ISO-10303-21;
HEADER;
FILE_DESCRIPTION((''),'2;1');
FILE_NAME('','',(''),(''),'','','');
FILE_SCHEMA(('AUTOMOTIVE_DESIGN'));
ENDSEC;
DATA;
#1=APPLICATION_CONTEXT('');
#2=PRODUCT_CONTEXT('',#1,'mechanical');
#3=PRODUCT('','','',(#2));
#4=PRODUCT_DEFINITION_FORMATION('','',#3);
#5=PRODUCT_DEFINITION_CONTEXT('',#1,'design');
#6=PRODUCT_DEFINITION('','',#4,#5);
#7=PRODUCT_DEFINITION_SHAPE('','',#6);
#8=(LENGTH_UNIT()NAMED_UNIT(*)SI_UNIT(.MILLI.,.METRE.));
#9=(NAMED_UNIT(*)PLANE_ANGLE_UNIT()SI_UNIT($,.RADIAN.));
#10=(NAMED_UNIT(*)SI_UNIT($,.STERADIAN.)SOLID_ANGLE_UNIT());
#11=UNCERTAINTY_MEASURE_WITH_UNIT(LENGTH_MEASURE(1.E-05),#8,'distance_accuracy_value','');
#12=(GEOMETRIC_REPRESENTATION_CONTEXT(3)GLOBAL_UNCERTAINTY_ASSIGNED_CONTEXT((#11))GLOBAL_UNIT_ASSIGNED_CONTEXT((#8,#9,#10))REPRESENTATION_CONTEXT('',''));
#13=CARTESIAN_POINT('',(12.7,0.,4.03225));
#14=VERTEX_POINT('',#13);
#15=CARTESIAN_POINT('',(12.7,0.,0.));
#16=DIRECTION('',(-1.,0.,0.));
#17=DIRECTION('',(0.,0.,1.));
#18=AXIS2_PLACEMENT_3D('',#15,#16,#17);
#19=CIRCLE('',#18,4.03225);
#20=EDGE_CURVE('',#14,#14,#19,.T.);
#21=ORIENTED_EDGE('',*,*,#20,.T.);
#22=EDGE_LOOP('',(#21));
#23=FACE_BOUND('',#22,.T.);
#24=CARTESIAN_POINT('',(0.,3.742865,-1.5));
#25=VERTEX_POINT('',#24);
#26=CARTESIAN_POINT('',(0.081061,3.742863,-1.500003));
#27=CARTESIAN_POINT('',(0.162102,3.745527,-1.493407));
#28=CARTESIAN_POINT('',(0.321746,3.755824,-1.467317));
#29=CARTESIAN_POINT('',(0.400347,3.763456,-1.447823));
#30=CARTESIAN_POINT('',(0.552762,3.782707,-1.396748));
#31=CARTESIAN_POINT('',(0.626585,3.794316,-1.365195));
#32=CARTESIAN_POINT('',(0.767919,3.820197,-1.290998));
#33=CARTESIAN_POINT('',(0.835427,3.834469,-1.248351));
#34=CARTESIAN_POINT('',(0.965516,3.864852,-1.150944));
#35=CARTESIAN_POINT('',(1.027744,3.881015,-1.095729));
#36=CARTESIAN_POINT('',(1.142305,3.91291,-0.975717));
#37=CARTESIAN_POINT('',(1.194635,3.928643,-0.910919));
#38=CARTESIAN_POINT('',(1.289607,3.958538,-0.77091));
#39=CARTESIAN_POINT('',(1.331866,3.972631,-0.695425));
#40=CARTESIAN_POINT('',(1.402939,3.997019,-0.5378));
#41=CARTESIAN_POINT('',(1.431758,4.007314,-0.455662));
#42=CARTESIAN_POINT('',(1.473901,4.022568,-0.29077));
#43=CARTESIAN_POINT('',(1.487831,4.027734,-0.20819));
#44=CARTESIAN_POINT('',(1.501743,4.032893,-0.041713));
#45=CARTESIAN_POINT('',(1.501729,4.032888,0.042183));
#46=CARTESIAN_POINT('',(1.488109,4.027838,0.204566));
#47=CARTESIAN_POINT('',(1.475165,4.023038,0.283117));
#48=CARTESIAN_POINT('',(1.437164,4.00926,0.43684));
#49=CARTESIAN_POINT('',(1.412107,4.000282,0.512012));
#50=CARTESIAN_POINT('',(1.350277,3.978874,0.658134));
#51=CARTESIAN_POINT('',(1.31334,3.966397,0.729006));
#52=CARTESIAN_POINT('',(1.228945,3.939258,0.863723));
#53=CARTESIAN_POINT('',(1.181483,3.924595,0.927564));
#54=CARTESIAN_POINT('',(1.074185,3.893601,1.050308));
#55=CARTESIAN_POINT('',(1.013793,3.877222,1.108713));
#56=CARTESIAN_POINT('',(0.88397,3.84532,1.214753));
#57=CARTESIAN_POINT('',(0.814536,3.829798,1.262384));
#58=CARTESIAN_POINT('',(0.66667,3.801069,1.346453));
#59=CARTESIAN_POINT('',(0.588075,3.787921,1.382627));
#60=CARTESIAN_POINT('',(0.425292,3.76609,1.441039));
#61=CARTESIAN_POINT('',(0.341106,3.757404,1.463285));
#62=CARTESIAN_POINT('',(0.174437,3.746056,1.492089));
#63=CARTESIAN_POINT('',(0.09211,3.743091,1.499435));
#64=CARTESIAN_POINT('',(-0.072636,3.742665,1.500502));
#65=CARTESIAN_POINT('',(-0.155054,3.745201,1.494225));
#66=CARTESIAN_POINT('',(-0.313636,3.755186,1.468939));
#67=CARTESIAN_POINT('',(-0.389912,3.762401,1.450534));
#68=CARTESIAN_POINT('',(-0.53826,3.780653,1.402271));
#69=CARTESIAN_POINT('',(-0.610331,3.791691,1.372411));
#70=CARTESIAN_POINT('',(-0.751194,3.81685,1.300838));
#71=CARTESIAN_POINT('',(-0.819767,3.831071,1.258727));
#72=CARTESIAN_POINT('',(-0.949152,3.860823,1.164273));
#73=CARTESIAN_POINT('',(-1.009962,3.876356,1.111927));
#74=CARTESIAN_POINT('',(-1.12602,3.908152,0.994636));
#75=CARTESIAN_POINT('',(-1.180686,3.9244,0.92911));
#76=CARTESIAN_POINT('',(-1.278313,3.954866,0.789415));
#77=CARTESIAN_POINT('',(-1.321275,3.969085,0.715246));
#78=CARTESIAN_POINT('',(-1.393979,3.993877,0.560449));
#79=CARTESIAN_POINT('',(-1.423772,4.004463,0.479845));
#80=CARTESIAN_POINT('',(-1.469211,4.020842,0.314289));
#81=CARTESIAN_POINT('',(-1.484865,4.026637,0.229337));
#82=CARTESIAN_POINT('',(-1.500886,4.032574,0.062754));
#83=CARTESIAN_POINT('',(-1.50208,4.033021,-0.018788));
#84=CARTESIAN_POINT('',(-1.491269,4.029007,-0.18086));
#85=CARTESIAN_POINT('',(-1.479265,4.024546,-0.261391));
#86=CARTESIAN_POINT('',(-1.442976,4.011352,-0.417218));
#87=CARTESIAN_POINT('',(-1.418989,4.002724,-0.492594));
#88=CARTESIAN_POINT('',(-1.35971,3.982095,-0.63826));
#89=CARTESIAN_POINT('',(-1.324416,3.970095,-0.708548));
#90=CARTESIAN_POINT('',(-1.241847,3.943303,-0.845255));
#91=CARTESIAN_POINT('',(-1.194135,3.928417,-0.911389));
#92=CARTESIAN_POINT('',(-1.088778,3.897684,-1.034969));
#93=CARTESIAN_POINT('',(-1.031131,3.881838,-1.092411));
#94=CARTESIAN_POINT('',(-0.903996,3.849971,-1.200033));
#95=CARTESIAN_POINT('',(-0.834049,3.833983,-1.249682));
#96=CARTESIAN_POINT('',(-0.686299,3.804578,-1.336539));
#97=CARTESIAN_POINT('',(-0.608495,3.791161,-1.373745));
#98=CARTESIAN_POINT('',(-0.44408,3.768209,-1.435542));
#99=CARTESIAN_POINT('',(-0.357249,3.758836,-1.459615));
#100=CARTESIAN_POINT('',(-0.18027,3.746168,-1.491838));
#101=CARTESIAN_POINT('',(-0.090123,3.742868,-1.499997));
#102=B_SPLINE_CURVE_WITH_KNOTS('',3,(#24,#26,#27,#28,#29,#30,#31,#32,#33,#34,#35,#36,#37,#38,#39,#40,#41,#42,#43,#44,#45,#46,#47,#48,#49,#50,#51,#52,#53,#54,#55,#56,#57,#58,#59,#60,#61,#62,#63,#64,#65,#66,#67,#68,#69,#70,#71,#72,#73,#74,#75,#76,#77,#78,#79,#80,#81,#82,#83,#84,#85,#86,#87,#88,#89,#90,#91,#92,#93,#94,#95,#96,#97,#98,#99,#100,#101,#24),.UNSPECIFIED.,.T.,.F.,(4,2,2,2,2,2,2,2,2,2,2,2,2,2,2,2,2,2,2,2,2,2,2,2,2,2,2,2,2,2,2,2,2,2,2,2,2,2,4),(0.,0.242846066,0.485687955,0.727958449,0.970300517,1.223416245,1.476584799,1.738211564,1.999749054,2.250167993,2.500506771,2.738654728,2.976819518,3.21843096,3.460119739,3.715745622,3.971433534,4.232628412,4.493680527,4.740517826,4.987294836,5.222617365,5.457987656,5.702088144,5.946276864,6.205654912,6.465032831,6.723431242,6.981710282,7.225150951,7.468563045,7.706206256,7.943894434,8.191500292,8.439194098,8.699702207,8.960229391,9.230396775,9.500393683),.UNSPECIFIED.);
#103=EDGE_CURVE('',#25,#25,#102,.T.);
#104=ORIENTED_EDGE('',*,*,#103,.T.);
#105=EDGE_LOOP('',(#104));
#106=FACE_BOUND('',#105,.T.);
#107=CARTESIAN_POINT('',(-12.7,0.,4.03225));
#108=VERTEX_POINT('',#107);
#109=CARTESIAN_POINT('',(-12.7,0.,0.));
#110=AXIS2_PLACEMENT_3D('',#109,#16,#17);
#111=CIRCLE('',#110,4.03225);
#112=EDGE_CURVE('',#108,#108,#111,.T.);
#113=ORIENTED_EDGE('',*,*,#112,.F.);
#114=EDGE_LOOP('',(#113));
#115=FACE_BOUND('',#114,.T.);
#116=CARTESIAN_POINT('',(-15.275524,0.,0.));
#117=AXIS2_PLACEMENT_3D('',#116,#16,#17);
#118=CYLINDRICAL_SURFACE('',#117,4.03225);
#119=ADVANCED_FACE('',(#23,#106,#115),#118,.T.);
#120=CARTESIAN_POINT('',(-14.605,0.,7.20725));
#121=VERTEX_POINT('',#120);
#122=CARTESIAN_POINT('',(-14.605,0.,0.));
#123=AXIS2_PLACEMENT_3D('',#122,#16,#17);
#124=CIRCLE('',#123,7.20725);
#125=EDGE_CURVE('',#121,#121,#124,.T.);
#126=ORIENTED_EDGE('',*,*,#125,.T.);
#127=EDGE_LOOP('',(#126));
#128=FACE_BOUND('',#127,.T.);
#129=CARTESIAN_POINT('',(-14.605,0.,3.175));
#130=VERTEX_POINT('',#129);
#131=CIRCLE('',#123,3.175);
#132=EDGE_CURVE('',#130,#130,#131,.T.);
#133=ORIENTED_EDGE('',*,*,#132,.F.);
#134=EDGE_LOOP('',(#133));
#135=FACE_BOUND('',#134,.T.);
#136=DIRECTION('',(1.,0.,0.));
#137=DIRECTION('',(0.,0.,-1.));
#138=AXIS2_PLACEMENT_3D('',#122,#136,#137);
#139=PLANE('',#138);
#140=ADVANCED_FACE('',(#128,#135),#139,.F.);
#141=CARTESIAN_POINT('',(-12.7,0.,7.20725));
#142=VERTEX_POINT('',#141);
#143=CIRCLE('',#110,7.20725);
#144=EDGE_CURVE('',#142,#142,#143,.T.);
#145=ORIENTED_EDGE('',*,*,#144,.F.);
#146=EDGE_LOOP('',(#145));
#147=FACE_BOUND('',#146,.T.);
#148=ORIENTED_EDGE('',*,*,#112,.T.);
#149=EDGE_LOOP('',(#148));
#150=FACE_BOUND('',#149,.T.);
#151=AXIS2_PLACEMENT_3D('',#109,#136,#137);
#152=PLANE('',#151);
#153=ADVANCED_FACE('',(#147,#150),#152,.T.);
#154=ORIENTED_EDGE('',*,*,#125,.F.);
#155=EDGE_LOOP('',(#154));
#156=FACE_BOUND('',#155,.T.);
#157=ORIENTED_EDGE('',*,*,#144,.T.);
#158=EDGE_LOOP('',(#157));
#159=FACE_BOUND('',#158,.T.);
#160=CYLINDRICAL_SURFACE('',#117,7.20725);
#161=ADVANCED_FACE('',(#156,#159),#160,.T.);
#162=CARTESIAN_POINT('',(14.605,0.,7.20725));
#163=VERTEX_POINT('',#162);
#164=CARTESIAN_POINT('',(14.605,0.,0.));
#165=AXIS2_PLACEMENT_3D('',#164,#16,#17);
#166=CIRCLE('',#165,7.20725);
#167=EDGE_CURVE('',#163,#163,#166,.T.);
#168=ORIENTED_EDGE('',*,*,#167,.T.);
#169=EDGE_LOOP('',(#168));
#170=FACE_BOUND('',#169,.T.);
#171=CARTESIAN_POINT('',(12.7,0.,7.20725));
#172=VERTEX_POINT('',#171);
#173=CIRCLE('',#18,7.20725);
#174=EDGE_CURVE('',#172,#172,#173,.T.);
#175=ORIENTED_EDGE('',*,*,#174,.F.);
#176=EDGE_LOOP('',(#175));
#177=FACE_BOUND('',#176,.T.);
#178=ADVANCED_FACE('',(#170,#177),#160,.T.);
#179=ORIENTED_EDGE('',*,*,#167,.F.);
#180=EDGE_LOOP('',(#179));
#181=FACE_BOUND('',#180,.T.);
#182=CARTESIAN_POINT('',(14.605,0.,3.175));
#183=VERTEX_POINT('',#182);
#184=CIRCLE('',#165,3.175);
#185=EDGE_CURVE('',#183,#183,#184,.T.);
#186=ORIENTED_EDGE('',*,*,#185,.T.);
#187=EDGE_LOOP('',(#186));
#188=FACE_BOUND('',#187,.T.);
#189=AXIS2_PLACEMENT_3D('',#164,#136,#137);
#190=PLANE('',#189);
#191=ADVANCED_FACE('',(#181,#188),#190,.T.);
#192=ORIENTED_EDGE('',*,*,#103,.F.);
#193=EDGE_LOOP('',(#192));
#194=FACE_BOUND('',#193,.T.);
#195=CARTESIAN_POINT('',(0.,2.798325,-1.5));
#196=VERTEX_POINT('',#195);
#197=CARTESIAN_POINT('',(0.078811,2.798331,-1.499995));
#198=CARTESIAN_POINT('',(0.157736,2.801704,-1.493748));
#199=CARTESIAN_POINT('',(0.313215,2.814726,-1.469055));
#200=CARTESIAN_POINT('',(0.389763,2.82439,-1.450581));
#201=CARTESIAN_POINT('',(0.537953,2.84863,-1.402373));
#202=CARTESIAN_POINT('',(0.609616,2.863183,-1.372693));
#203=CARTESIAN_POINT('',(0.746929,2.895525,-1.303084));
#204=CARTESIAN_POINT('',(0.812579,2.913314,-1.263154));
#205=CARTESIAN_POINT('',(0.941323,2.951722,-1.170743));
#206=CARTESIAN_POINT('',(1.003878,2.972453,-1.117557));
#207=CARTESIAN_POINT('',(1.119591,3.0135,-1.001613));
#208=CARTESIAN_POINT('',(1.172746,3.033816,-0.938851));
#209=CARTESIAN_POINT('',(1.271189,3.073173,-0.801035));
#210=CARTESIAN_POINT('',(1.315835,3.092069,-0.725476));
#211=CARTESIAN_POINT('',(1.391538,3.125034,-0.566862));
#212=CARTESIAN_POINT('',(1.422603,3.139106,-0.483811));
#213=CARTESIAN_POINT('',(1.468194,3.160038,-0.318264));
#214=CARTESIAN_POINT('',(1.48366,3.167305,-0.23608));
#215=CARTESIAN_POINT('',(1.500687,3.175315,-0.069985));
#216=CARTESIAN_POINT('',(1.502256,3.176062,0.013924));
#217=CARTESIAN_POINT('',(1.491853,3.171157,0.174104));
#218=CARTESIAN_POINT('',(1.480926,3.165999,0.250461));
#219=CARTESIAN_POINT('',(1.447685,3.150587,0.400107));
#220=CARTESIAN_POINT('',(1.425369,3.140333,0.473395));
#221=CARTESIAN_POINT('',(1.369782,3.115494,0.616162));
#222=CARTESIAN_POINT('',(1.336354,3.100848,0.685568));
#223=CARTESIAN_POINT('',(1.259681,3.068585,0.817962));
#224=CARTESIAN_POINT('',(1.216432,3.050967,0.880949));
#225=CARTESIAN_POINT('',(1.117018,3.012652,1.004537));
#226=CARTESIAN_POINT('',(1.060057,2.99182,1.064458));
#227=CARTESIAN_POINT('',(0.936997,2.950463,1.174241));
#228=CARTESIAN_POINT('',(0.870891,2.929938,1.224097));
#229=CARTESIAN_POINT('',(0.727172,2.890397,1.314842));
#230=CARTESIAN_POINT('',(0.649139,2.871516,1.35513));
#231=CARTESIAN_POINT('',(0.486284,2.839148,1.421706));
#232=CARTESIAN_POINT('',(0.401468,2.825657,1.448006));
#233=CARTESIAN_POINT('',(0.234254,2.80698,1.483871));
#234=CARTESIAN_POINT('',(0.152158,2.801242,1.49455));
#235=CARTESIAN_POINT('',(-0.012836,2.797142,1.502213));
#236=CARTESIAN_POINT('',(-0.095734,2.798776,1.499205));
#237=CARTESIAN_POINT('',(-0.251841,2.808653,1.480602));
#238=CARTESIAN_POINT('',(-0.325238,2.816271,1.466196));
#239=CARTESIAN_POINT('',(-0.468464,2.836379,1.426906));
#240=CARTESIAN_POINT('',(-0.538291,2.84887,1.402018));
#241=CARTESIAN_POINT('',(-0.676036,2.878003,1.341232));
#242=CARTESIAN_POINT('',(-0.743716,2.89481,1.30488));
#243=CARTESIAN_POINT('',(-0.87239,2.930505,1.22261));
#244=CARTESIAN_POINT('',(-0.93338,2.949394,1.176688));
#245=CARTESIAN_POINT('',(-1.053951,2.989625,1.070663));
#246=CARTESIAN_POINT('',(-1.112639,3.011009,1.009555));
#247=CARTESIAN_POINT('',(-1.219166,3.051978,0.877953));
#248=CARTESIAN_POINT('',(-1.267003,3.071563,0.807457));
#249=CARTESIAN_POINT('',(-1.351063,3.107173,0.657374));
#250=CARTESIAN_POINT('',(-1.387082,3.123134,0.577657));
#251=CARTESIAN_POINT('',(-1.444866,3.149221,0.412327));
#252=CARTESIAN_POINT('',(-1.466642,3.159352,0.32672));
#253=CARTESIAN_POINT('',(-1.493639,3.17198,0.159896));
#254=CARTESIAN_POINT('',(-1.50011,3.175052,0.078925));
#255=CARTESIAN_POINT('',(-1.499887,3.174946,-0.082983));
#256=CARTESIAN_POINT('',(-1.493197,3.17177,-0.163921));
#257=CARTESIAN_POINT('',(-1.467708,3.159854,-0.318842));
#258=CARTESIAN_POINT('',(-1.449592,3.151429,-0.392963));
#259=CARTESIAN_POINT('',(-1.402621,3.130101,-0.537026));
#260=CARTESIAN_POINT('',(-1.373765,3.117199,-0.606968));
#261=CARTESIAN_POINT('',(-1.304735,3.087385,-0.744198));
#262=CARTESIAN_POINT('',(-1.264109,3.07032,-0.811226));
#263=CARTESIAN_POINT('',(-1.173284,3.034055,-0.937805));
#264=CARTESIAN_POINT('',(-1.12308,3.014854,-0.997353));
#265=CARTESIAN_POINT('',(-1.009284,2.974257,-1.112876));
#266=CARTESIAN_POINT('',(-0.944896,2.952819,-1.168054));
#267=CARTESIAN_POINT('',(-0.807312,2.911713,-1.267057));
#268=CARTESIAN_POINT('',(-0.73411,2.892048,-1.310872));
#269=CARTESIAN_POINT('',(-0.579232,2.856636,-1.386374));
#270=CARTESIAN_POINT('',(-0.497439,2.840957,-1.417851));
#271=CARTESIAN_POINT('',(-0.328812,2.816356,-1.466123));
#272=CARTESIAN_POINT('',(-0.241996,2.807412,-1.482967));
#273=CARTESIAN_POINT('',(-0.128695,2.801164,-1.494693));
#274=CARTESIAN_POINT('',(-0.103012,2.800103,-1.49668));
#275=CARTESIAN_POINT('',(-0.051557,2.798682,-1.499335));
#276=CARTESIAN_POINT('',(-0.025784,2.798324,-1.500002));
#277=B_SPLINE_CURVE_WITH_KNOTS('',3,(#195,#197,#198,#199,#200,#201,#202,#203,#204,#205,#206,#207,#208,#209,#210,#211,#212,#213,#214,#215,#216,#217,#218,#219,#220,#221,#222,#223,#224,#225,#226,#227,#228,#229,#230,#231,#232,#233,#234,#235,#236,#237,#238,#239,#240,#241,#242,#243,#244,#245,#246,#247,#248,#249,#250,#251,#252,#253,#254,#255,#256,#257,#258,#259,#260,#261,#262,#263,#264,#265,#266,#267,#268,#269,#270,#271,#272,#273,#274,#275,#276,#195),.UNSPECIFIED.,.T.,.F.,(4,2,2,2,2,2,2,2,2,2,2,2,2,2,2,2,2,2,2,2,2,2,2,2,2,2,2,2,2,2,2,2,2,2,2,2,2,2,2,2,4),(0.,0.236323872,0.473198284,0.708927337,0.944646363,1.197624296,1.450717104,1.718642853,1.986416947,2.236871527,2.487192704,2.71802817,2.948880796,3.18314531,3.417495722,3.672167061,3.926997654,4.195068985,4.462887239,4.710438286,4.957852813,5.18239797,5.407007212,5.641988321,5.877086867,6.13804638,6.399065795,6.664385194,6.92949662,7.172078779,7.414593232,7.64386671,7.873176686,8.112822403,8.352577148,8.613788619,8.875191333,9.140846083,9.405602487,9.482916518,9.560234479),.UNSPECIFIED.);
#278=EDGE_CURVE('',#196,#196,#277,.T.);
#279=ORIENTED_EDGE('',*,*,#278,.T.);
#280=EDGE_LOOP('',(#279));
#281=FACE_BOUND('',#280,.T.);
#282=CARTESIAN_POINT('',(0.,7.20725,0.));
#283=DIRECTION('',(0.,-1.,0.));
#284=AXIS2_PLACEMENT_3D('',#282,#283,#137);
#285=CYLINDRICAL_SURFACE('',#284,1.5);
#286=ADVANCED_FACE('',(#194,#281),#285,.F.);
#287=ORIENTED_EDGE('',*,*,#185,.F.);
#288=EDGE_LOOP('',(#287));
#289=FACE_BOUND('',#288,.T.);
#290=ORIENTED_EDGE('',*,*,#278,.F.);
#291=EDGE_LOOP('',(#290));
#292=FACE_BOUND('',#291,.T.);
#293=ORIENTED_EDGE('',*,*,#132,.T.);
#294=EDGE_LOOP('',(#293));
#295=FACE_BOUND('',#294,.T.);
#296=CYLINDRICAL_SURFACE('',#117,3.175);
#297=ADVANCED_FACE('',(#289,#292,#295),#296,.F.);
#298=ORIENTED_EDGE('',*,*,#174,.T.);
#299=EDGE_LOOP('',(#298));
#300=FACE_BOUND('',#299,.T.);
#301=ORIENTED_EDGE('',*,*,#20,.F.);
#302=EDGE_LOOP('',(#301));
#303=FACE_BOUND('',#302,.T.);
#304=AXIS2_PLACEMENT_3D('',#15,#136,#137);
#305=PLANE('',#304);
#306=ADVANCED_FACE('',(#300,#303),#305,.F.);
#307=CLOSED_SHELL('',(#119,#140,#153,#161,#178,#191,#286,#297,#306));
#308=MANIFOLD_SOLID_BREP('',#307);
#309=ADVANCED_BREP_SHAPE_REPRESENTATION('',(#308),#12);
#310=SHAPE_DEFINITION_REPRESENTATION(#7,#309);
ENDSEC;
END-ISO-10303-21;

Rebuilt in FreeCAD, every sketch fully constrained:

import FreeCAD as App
import Part
import Sketcher
from FreeCAD import Vector
Q = App.Units.Quantity


def add_polygon(sketch, points):
    """Adds a closed chain of lines whose ends are joined by coincident constraints."""
    first, n = sketch.GeometryCount, len(points)
    for a, b in zip(points, points[1:] + points[:1]):
        sketch.addGeometry(Part.LineSegment(App.Vector(*a, 0), App.Vector(*b, 0)), False)
    for i in range(n):
        sketch.addConstraint(Sketcher.Constraint("Coincident", first + i, 2, first + (i + 1) % n, 1))

doc = App.newDocument("Part")
params = doc.addObject("Spreadsheet::Sheet", "Params")
for row, (alias, value) in enumerate([
    ("sketch1_width", "1 in"),
    ("sketch1_width2", "1.15 in"),
    ("sketch1_height", "0.125 in"),
    ("revolution_angle", "360 deg"),
], start=1):
    params.set(f"A{row}", alias)
    params.set(f"B{row}", "=" + value)
    params.setAlias(f"B{row}", alias)

body = doc.addObject("PartDesign::Body", "Body")

sketch1 = doc.addObject("Sketcher::SketchObject", "Sketch")
body.addObject(sketch1)
sketch1.AttachmentSupport = (doc.XY_Plane, [""])
sketch1.MapMode = "FlatFace"
add_polygon(sketch1, [(14.6, 3.2), (14.6, 7.2), (12.7, 7.2), (12.7, 4), (-12.7, 4), (-12.7, 7.2), (-14.6, 7.2), (-14.6, 3.2)])
sketch1.addConstraint(Sketcher.Constraint("Vertical", 0))
sketch1.addConstraint(Sketcher.Constraint("Horizontal", 1))
sketch1.addConstraint(Sketcher.Constraint("Vertical", 2))
sketch1.addConstraint(Sketcher.Constraint("Horizontal", 3))
sketch1.addConstraint(Sketcher.Constraint("Vertical", 4))
sketch1.addConstraint(Sketcher.Constraint("Horizontal", 5))
sketch1.addConstraint(Sketcher.Constraint("Vertical", 6))
sketch1.addConstraint(Sketcher.Constraint("Horizontal", 7))
sketch1.addConstraint(Sketcher.Constraint("Symmetric", 1, 2, 4, 2, -2))
sketch1.addConstraint(Sketcher.Constraint("Equal", 1, 5))
sketch1.addConstraint(Sketcher.Constraint("DistanceX", 3, 2, 3, 1, Q("1 in")))
sketch1.addConstraint(Sketcher.Constraint("DistanceX", 7, 1, 7, 2, Q("1.15 in")))
sketch1.addConstraint(Sketcher.Constraint("DistanceY", 2, 2, 2, 1, Q("0.125 in")))
sketch1.addConstraint(Sketcher.Constraint("DistanceY", -1, 1, 6, 2, Q("0.125 in")))
sketch1.addConstraint(Sketcher.Constraint("DistanceY", 0, 1, 0, 2, Q("4.03225 mm")))
sketch1.setExpression("Constraints[18]", "Params.sketch1_width")
sketch1.setExpression("Constraints[19]", "Params.sketch1_width2")
sketch1.setExpression("Constraints[20]", "Params.sketch1_height")
revolution = doc.addObject("PartDesign::Revolution", "Revolution")
body.addObject(revolution)
revolution.Profile = sketch1
revolution.ReferenceAxis = (sketch1, ["H_Axis"])
revolution.setExpression("Angle", "Params.revolution_angle")

sketch2 = doc.addObject("Sketcher::SketchObject", "Sketch001")
body.addObject(sketch2)
sketch2.AttachmentSupport = (doc.XZ_Plane, [""])
sketch2.MapMode = "FlatFace"
sketch2.addGeometry(Part.Circle(Vector(0, 0, 0), Vector(0, 0, 1), 1.5), False)
sketch2.addConstraint(Sketcher.Constraint("Coincident", 0, 3, -1, 1))
sketch2.addConstraint(Sketcher.Constraint("Diameter", 0, Q("3 mm")))
pocket1 = doc.addObject("PartDesign::Pocket", "Pocket")
body.addObject(pocket1)
pocket1.Profile = sketch2
pocket1.Type = "ThroughAll"

doc.recompute()
